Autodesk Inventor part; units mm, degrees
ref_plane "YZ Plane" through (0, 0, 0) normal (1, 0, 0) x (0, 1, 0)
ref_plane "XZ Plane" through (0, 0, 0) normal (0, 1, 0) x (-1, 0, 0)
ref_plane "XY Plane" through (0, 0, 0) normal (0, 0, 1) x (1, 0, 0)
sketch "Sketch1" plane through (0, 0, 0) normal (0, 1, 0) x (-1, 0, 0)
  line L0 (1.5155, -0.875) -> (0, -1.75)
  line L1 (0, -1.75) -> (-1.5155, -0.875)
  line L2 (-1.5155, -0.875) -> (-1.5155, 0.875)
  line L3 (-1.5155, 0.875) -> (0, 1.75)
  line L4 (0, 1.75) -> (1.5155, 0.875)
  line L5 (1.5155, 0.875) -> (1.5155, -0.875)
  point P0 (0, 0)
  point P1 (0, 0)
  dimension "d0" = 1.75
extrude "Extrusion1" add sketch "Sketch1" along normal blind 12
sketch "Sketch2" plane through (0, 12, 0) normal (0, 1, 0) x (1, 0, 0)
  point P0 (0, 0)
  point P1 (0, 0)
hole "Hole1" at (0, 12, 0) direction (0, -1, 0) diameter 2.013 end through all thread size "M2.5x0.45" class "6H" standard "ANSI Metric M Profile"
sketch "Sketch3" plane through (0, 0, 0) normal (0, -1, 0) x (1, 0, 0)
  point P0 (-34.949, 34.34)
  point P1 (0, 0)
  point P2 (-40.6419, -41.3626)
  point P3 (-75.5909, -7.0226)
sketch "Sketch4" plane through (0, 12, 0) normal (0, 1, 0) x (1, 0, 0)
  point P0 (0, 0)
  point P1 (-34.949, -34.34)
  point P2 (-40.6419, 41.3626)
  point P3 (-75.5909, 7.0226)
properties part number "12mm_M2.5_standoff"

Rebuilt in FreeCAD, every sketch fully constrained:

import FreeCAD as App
import Part
import Sketcher
Q = App.Units.Quantity

doc = App.newDocument("Part")
params = doc.addObject("Spreadsheet::Sheet", "Params")
for row, (alias, value) in enumerate([
    ("sketch1_height", "1.75 mm"),
    ("sketch1_length", "1.75 mm"),
    ("pad1_length", "12 mm"),
    ("hole_diameter", "2.013 mm"),
], start=1):
    params.set(f"A{row}", alias)
    params.set(f"B{row}", "=" + value)
    params.setAlias(f"B{row}", alias)

body = doc.addObject("PartDesign::Body", "Body")

# Sketch on XZ plane
sketch1 = body.newObject("Sketcher::SketchObject", "Sketch")
sketch1.AttachmentSupport = (doc.getObject("XZ_Plane"), [""])
sketch1.MapMode = "FlatFace"
sketch1.addGeometry([
    Part.LineSegment(App.Vector(0, -1.8, 0), App.Vector(-1.5, -0.9, 0)),  # 0
    Part.LineSegment(App.Vector(-1.5, -0.9, 0), App.Vector(-1.5, 0.9, 0)),  # 1
    Part.LineSegment(App.Vector(-1.5, 0.9, 0), App.Vector(0, 1.8, 0)),  # 2
    Part.LineSegment(App.Vector(0, 1.8, 0), App.Vector(1.5, 0.9, 0)),  # 3
    Part.LineSegment(App.Vector(1.5, 0.9, 0), App.Vector(1.5, -0.9, 0)),  # 4
    Part.LineSegment(App.Vector(1.5, -0.9, 0), App.Vector(0, -1.8, 0)),  # 5
], False)
sketch1.addConstraint([
    Sketcher.Constraint("Coincident", 0, 2, 1, 1),
    Sketcher.Constraint("Coincident", 1, 2, 2, 1),
    Sketcher.Constraint("Coincident", 2, 2, 3, 1),
    Sketcher.Constraint("Coincident", 3, 2, 4, 1),
    Sketcher.Constraint("Coincident", 4, 2, 5, 1),
    Sketcher.Constraint("Coincident", 5, 2, 0, 1),
    Sketcher.Constraint("Vertical", 1),
    Sketcher.Constraint("Vertical", 4),
    Sketcher.Constraint("Symmetric", 0, 2, 3, 2, -1, 1),
    Sketcher.Constraint("Symmetric", 2, 2, 5, 2, -1, 1),
    Sketcher.Constraint("PointOnObject", 2, 2, -2),
    Sketcher.Constraint("Parallel", 2, 5),
    Sketcher.Constraint("Horizontal", 1, 2, 3, 2),
    Sketcher.Constraint("DistanceY", 1, 1, 1, 2, Q("1.75 mm")),
    Sketcher.Constraint("Distance", 0, Q("1.75 mm")),
    Sketcher.Constraint("DistanceY", -1, 1, 2, 2, Q("1.75 mm")),
])
sketch1.setExpression("Constraints[13]", "Params.sketch1_height")
sketch1.setExpression("Constraints[14]", "Params.sketch1_length")
pad1 = body.newObject("PartDesign::Pad", "Pad")
pad1.Profile = sketch1
pad1.setExpression("Length", "Params.pad1_length")
pad1.Reversed = True

# Sketch on XZ plane
sketch2 = body.newObject("Sketcher::SketchObject", "Sketch001")
sketch2.AttachmentSupport = (doc.getObject("XZ_Plane"), [""])
sketch2.MapMode = "FlatFace"
sketch2.AttachmentOffset = App.Placement(App.Vector(0, 0, -12), App.Rotation())
sketch2.addGeometry(Part.Circle(App.Vector(0, 0, 0), App.Vector(0, 0, 1), 1), False)
sketch2.addConstraint([
    Sketcher.Constraint("Coincident", 0, 3, -1, 1),
    Sketcher.Constraint("Diameter", 0, Q("2.013 mm")),
])
doc.recompute()
hole = body.newObject("PartDesign::Hole", "Hole")
hole.Profile = sketch2
hole.ThreadType = "None"
hole.setExpression("Diameter", "Params.hole_diameter")
hole.DepthType = "ThroughAll"
hole.Reversed = True

doc.recompute()
